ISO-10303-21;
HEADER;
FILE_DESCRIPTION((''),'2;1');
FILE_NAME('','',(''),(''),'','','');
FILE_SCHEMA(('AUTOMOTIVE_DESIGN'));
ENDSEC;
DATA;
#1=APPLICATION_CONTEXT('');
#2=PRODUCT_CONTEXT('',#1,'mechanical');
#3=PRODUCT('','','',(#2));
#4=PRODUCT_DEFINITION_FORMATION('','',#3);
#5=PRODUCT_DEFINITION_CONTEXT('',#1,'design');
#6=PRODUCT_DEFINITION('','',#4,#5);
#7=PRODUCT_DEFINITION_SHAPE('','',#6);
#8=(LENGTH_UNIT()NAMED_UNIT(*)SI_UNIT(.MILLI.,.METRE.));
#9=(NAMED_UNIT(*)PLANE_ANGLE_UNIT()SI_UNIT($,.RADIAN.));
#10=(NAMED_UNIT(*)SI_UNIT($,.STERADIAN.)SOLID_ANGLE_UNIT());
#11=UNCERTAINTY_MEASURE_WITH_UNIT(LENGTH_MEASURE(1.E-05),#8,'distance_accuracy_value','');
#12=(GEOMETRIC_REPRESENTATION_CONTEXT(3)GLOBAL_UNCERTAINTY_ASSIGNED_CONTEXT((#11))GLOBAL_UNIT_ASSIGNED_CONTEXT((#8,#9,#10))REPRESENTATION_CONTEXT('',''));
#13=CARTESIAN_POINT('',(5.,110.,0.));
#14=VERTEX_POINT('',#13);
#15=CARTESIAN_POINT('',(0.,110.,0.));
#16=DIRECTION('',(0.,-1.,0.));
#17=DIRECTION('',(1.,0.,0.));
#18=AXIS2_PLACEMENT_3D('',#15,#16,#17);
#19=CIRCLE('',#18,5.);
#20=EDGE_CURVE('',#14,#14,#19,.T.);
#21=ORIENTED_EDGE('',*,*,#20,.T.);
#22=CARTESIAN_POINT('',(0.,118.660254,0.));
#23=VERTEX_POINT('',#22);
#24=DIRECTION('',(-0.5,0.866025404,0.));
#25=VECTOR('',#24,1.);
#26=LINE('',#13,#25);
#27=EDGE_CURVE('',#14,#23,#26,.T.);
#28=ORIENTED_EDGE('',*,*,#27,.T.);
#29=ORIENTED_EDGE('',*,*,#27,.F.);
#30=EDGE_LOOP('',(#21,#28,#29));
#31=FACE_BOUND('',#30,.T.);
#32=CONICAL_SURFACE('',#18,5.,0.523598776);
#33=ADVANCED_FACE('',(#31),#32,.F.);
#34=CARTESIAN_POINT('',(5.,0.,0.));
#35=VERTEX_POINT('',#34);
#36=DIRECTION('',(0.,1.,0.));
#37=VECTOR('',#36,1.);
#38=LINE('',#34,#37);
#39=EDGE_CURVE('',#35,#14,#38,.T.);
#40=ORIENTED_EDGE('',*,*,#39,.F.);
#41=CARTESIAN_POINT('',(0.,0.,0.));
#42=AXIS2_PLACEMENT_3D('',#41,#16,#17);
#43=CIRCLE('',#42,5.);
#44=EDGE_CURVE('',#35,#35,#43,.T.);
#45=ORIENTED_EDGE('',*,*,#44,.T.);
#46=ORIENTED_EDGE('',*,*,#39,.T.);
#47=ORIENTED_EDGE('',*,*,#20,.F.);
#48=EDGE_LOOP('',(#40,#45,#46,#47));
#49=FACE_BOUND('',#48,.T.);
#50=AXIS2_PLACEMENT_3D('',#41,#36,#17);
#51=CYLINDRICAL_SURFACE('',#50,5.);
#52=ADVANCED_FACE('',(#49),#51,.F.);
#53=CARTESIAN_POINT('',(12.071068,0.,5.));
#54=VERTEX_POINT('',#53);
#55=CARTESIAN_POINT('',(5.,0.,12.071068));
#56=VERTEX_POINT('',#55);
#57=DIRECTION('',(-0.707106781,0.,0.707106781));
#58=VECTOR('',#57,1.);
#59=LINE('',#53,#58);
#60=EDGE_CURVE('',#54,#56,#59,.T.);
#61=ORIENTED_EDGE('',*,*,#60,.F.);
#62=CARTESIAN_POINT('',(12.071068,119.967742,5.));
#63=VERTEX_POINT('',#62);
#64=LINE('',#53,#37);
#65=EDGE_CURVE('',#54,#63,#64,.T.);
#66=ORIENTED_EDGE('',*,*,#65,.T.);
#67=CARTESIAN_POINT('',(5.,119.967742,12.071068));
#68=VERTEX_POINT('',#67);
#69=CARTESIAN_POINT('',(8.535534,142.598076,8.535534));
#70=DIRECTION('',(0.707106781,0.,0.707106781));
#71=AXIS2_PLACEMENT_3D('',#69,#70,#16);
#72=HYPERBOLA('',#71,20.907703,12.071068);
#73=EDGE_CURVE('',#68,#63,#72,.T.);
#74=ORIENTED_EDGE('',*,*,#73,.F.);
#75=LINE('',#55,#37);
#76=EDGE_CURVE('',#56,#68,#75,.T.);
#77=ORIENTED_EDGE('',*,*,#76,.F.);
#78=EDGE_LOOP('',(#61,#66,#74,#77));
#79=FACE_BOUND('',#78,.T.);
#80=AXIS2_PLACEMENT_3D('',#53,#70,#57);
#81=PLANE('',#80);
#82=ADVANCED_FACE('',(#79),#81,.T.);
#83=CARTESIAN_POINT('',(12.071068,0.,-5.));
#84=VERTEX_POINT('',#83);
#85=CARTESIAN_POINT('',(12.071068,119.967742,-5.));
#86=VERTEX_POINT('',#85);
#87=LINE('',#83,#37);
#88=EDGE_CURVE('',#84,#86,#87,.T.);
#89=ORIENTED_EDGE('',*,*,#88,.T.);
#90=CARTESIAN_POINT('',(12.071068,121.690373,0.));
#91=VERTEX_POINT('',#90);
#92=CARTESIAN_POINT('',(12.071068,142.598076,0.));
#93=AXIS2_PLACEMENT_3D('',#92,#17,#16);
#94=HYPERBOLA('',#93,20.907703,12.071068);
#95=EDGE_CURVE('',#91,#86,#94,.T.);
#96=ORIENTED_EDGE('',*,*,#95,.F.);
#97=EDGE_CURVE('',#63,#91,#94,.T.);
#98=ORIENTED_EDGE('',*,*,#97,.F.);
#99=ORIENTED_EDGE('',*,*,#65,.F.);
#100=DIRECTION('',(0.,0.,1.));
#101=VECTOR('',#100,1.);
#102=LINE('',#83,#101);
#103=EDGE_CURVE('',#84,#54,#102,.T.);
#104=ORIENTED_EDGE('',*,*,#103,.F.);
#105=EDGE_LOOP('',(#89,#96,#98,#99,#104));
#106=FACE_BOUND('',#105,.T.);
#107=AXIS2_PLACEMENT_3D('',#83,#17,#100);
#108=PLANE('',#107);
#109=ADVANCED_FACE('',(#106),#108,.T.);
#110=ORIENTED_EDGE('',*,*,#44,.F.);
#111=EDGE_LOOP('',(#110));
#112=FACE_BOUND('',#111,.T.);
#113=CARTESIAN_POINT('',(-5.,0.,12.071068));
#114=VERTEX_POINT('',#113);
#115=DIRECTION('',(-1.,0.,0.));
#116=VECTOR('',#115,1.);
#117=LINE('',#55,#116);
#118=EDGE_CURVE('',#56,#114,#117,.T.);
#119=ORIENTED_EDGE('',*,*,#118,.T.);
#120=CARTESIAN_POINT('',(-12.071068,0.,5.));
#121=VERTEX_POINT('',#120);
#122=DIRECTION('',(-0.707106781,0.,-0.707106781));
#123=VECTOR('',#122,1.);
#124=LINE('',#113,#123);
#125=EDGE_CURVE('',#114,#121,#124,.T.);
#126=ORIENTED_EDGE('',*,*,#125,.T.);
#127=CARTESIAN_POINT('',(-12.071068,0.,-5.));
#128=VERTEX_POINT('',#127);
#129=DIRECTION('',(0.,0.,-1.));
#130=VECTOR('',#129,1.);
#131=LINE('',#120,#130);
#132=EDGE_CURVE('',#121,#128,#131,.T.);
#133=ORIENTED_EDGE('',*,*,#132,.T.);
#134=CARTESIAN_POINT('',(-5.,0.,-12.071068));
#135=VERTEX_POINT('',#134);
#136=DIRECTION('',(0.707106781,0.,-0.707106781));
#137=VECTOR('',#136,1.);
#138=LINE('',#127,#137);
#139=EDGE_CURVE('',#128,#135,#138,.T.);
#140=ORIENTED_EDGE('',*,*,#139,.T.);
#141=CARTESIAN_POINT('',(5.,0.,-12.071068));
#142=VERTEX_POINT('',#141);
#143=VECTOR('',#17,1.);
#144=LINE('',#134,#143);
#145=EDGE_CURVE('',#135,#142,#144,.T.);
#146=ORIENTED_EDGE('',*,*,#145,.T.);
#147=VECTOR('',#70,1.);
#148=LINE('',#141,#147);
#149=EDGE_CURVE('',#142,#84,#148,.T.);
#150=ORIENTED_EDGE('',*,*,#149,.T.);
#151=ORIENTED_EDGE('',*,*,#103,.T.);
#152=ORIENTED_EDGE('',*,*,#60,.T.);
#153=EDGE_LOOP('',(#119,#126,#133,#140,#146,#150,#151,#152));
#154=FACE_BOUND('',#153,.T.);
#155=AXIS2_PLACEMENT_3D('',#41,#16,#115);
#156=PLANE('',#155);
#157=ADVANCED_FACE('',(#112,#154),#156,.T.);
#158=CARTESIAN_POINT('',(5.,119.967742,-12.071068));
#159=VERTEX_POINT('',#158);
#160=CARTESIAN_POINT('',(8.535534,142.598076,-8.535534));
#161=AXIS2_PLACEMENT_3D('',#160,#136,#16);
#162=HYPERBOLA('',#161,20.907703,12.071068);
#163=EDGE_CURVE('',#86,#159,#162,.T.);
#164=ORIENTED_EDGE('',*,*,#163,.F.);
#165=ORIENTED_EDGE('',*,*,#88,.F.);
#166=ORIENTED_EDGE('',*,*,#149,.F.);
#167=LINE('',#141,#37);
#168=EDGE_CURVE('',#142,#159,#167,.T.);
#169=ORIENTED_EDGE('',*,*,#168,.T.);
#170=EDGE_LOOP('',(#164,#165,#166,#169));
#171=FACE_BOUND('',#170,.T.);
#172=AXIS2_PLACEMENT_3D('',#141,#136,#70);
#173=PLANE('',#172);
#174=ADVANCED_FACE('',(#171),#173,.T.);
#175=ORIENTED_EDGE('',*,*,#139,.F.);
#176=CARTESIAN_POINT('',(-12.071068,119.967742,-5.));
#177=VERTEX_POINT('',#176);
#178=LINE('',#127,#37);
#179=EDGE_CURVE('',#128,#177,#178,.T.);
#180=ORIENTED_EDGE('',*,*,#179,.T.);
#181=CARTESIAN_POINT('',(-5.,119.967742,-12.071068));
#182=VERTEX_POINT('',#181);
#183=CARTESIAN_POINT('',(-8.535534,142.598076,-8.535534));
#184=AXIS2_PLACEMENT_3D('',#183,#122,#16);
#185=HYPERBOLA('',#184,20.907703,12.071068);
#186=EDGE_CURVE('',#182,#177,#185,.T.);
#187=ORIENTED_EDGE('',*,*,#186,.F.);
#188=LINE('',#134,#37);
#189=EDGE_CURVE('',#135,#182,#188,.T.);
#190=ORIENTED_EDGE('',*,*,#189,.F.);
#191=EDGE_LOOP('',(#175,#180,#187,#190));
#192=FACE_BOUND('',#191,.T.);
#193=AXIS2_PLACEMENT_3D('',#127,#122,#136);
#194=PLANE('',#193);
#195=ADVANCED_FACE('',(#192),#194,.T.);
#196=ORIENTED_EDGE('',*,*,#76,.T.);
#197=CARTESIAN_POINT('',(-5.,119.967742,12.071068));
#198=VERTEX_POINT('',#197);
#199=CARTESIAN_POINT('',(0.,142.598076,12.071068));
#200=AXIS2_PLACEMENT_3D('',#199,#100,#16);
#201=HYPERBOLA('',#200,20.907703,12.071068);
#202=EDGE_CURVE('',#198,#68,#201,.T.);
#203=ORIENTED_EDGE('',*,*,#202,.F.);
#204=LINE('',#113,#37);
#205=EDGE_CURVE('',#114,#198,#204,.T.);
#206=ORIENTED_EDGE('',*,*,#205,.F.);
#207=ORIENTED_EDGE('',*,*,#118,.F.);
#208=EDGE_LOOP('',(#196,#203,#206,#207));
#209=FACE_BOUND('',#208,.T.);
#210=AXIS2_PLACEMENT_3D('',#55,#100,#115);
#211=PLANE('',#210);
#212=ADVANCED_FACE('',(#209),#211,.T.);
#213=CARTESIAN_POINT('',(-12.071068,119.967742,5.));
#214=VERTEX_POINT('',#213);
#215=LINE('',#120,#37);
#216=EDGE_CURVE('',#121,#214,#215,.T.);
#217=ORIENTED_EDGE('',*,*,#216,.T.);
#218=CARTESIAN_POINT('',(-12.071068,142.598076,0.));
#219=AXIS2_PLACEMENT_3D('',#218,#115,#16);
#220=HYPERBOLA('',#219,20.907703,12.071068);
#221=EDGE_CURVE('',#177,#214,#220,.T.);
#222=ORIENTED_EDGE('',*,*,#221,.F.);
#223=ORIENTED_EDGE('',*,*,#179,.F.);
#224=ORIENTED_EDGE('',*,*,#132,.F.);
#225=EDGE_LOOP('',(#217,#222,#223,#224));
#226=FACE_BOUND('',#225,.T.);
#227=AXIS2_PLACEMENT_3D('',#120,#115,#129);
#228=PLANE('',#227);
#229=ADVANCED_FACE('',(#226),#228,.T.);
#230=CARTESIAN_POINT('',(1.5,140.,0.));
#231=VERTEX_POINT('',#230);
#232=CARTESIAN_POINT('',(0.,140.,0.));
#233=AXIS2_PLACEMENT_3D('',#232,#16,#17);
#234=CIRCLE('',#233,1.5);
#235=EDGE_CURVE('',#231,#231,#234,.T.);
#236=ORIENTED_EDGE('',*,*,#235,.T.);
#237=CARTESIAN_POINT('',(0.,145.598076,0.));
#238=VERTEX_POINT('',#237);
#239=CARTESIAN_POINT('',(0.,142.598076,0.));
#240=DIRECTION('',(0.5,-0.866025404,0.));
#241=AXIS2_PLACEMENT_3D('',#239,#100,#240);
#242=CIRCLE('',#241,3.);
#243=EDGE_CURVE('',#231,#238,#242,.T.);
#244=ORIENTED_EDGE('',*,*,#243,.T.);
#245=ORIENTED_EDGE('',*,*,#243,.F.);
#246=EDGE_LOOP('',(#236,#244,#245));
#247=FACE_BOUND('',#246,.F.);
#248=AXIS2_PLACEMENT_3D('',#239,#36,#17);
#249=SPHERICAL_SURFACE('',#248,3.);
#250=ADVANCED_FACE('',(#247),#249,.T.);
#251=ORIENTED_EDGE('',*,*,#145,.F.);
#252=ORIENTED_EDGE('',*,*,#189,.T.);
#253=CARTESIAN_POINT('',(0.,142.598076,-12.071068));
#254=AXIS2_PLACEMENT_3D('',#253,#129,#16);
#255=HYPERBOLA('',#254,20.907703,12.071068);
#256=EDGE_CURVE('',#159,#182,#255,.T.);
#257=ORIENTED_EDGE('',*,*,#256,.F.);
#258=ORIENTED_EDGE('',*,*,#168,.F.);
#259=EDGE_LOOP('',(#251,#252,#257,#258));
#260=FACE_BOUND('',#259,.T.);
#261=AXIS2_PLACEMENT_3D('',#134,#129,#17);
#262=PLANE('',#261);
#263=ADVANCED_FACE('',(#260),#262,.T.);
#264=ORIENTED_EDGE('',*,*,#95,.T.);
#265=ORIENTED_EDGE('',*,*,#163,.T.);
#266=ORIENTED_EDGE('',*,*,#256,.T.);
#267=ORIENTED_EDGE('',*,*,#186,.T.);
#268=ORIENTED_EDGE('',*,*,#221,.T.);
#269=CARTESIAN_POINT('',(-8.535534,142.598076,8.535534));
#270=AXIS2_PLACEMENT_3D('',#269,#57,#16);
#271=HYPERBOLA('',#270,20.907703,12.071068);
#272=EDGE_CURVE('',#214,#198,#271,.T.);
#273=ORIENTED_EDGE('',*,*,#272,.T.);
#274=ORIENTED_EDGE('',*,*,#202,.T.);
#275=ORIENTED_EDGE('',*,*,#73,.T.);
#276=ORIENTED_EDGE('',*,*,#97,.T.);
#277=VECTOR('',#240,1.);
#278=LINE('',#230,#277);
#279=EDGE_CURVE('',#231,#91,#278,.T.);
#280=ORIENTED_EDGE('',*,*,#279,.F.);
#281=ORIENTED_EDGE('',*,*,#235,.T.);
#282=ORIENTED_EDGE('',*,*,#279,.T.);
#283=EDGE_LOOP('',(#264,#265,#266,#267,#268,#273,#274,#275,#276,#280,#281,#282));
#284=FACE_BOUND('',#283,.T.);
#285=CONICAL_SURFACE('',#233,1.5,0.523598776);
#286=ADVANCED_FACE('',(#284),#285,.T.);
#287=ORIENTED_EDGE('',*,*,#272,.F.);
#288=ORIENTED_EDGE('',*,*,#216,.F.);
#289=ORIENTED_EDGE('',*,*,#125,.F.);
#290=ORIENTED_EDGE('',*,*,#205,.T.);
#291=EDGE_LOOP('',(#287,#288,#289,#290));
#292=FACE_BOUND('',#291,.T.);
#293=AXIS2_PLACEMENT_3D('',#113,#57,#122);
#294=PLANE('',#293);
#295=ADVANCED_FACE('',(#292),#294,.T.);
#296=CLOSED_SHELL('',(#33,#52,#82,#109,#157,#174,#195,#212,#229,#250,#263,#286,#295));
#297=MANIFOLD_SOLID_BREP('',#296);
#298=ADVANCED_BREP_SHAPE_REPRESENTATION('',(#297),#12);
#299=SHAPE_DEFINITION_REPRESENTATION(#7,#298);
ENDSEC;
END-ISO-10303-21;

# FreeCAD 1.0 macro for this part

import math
import FreeCAD as App
import Part
import Sketcher

V = App.Vector
Q = App.Units.Quantity


def add_polygon(sketch, points):
    """Adds a closed chain of lines whose ends are joined by coincident constraints."""
    first, n = sketch.GeometryCount, len(points)
    for a, b in zip(points, points[1:] + points[:1]):
        sketch.addGeometry(Part.LineSegment(App.Vector(*a, 0), App.Vector(*b, 0)), False)
    for i in range(n):
        sketch.addConstraint(Sketcher.Constraint("Coincident", first + i, 2, first + (i + 1) % n, 1))

doc = App.newDocument("Part")
params = doc.addObject("Spreadsheet::Sheet", "Params")
for row, (alias, value) in enumerate([
    ("sketch1_width", "10 mm"),
    ("sketch1_length", "10 mm"),
    ("pad1_length", "140 mm"),
    ("groove_angle", "360 deg"),
    ("sketch3_radius", "3 mm"),
    ("sketch3_width", "1.5 mm"),
    ("revolution_angle", "360 deg"),
    ("sketch4_width", "5 mm"),
    ("sketch4_height", "110 mm"),
    ("groove2_angle", "360 deg"),
], start=1):
    params.set(f"A{row}", alias)
    params.set(f"B{row}", "=" + value)
    params.setAlias(f"B{row}", alias)

body = doc.addObject("PartDesign::Body", "Body")

sketch1 = body.newObject("Sketcher::SketchObject", "Sketch")
sketch1.AttachmentSupport = (doc.getObject("XZ_Plane"), [""])
sketch1.MapMode = "FlatFace"
add_polygon(sketch1, [(-12.071068, -5), (-12.071068, 5), (-5, 12.071068), (5, 12.071068), (12.071068, 5), (12.071068, -5), (5, -12.071068), (-5, -12.071068)])
sketch1.addConstraint([
    Sketcher.Constraint("Vertical", 0),
    Sketcher.Constraint("Horizontal", 2),
    Sketcher.Constraint("Vertical", 4),
    Sketcher.Constraint("Horizontal", 6),
    Sketcher.Constraint("Symmetric", 0, 2, 4, 2, -1, 1),
    Sketcher.Constraint("Symmetric", 1, 2, 5, 2, -1, 1),
    Sketcher.Constraint("Perpendicular", 1, 3),
    Sketcher.Constraint("Perpendicular", 5, 7),
    Sketcher.Constraint("Horizontal", 0, 2, 3, 2),
    Sketcher.Constraint("Horizontal", 4, 2, 7, 2),
    Sketcher.Constraint("Vertical", 2, 2, 5, 2),
    Sketcher.Constraint("Equal", 6, 0),
    Sketcher.Constraint("DistanceX", 2, 1, 2, 2, 10.0),
    Sketcher.Constraint("Distance", 1, 10.0),
])
sketch1.setExpression("Constraints[20]", "Params.sketch1_width")
sketch1.setExpression("Constraints[21]", "Params.sketch1_length")
pad1 = body.newObject("PartDesign::Pad", "Pad")
pad1.Profile = sketch1
pad1.setExpression("Length", "Params.pad1_length")
pad1.Reversed = True

sketch2 = body.newObject("Sketcher::SketchObject", "Sketch001")
sketch2.AttachmentSupport = (doc.getObject("XY_Plane"), [""])
sketch2.MapMode = "FlatFace"
add_polygon(sketch2, [(1.5, 140), (14.422662, 117.617293), (14.422662, 140)])
sketch2.addConstraint([
    Sketcher.Constraint("Vertical", 1),
    Sketcher.Constraint("Horizontal", 2),
    Sketcher.Constraint("Angle", 0, Q("-60 deg")),
    Sketcher.Constraint("DistanceY", -1, 1, 1, 2, 140.0),
    Sketcher.Constraint("DistanceX", -1, 1, 2, 2, 1.5),
    Sketcher.Constraint("DistanceX", 2, 2, 2, 1, 12.922662),
])
groove = body.newObject("PartDesign::Groove", "Groove")
groove.Profile = sketch2
groove.ReferenceAxis = (sketch2, ["V_Axis"])
groove.setExpression("Angle", "Params.groove_angle")

sketch3 = body.newObject("Sketcher::SketchObject", "Sketch002")
sketch3.AttachmentSupport = (doc.getObject("XY_Plane"), [""])
sketch3.MapMode = "FlatFace"
sketch3.addGeometry([
    Part.LineSegment(V(0, 145.598076, 0), V(0, 140, 0)),
    Part.LineSegment(V(0, 140, 0), V(1.5, 140, 0)),
    Part.ArcOfCircle(Part.Circle(V(0, 142.598076, 0), V(0, 0, 1), 3), math.radians(-60), math.radians(90)),
], False)
sketch3.addConstraint([
    Sketcher.Constraint("Coincident", 0, 2, 1, 1),
    Sketcher.Constraint("Coincident", 1, 2, 2, 1),
    Sketcher.Constraint("Coincident", 2, 2, 0, 1),
    Sketcher.Constraint("Vertical", 0),
    Sketcher.Constraint("Horizontal", 1),
    Sketcher.Constraint("PointOnObject", 2, 3, -2),
    Sketcher.Constraint("PointOnObject", 0, 2, -2),
    Sketcher.Constraint("Radius", 2, 3.0),
    Sketcher.Constraint("DistanceX", 1, 1, 1, 2, 1.5),
    Sketcher.Constraint("DistanceY", -1, 1, 0, 2, 140.0),
])
sketch3.setExpression("Constraints[7]", "Params.sketch3_radius")
sketch3.setExpression("Constraints[8]", "Params.sketch3_width")
revolution = body.newObject("PartDesign::Revolution", "Revolution")
revolution.Profile = sketch3
revolution.ReferenceAxis = (sketch3, ["V_Axis"])
revolution.setExpression("Angle", "Params.revolution_angle")

sketch4 = body.newObject("Sketcher::SketchObject", "Sketch003")
sketch4.AttachmentSupport = (doc.getObject("XY_Plane"), [""])
sketch4.MapMode = "FlatFace"
add_polygon(sketch4, [(0, 0), (5, 0), (5, 110), (0, 118.660254)])
sketch4.addConstraint([
    Sketcher.Constraint("Horizontal", 0),
    Sketcher.Constraint("Vertical", 1),
    Sketcher.Constraint("Vertical", 3),
    Sketcher.Constraint("Coincident", 3, 2, -1, 1),
    Sketcher.Constraint("DistanceX", 0, 1, 0, 2, 5.0),
    Sketcher.Constraint("DistanceY", 1, 1, 1, 2, 110.0),
    Sketcher.Constraint("Angle", 2, Q("120 deg")),
])
sketch4.setExpression("Constraints[8]", "Params.sketch4_width")
sketch4.setExpression("Constraints[9]", "Params.sketch4_height")
groove2 = body.newObject("PartDesign::Groove", "Groove001")
groove2.Profile = sketch4
groove2.ReferenceAxis = (sketch4, ["V_Axis"])
groove2.setExpression("Angle", "Params.groove2_angle")

doc.recompute()
